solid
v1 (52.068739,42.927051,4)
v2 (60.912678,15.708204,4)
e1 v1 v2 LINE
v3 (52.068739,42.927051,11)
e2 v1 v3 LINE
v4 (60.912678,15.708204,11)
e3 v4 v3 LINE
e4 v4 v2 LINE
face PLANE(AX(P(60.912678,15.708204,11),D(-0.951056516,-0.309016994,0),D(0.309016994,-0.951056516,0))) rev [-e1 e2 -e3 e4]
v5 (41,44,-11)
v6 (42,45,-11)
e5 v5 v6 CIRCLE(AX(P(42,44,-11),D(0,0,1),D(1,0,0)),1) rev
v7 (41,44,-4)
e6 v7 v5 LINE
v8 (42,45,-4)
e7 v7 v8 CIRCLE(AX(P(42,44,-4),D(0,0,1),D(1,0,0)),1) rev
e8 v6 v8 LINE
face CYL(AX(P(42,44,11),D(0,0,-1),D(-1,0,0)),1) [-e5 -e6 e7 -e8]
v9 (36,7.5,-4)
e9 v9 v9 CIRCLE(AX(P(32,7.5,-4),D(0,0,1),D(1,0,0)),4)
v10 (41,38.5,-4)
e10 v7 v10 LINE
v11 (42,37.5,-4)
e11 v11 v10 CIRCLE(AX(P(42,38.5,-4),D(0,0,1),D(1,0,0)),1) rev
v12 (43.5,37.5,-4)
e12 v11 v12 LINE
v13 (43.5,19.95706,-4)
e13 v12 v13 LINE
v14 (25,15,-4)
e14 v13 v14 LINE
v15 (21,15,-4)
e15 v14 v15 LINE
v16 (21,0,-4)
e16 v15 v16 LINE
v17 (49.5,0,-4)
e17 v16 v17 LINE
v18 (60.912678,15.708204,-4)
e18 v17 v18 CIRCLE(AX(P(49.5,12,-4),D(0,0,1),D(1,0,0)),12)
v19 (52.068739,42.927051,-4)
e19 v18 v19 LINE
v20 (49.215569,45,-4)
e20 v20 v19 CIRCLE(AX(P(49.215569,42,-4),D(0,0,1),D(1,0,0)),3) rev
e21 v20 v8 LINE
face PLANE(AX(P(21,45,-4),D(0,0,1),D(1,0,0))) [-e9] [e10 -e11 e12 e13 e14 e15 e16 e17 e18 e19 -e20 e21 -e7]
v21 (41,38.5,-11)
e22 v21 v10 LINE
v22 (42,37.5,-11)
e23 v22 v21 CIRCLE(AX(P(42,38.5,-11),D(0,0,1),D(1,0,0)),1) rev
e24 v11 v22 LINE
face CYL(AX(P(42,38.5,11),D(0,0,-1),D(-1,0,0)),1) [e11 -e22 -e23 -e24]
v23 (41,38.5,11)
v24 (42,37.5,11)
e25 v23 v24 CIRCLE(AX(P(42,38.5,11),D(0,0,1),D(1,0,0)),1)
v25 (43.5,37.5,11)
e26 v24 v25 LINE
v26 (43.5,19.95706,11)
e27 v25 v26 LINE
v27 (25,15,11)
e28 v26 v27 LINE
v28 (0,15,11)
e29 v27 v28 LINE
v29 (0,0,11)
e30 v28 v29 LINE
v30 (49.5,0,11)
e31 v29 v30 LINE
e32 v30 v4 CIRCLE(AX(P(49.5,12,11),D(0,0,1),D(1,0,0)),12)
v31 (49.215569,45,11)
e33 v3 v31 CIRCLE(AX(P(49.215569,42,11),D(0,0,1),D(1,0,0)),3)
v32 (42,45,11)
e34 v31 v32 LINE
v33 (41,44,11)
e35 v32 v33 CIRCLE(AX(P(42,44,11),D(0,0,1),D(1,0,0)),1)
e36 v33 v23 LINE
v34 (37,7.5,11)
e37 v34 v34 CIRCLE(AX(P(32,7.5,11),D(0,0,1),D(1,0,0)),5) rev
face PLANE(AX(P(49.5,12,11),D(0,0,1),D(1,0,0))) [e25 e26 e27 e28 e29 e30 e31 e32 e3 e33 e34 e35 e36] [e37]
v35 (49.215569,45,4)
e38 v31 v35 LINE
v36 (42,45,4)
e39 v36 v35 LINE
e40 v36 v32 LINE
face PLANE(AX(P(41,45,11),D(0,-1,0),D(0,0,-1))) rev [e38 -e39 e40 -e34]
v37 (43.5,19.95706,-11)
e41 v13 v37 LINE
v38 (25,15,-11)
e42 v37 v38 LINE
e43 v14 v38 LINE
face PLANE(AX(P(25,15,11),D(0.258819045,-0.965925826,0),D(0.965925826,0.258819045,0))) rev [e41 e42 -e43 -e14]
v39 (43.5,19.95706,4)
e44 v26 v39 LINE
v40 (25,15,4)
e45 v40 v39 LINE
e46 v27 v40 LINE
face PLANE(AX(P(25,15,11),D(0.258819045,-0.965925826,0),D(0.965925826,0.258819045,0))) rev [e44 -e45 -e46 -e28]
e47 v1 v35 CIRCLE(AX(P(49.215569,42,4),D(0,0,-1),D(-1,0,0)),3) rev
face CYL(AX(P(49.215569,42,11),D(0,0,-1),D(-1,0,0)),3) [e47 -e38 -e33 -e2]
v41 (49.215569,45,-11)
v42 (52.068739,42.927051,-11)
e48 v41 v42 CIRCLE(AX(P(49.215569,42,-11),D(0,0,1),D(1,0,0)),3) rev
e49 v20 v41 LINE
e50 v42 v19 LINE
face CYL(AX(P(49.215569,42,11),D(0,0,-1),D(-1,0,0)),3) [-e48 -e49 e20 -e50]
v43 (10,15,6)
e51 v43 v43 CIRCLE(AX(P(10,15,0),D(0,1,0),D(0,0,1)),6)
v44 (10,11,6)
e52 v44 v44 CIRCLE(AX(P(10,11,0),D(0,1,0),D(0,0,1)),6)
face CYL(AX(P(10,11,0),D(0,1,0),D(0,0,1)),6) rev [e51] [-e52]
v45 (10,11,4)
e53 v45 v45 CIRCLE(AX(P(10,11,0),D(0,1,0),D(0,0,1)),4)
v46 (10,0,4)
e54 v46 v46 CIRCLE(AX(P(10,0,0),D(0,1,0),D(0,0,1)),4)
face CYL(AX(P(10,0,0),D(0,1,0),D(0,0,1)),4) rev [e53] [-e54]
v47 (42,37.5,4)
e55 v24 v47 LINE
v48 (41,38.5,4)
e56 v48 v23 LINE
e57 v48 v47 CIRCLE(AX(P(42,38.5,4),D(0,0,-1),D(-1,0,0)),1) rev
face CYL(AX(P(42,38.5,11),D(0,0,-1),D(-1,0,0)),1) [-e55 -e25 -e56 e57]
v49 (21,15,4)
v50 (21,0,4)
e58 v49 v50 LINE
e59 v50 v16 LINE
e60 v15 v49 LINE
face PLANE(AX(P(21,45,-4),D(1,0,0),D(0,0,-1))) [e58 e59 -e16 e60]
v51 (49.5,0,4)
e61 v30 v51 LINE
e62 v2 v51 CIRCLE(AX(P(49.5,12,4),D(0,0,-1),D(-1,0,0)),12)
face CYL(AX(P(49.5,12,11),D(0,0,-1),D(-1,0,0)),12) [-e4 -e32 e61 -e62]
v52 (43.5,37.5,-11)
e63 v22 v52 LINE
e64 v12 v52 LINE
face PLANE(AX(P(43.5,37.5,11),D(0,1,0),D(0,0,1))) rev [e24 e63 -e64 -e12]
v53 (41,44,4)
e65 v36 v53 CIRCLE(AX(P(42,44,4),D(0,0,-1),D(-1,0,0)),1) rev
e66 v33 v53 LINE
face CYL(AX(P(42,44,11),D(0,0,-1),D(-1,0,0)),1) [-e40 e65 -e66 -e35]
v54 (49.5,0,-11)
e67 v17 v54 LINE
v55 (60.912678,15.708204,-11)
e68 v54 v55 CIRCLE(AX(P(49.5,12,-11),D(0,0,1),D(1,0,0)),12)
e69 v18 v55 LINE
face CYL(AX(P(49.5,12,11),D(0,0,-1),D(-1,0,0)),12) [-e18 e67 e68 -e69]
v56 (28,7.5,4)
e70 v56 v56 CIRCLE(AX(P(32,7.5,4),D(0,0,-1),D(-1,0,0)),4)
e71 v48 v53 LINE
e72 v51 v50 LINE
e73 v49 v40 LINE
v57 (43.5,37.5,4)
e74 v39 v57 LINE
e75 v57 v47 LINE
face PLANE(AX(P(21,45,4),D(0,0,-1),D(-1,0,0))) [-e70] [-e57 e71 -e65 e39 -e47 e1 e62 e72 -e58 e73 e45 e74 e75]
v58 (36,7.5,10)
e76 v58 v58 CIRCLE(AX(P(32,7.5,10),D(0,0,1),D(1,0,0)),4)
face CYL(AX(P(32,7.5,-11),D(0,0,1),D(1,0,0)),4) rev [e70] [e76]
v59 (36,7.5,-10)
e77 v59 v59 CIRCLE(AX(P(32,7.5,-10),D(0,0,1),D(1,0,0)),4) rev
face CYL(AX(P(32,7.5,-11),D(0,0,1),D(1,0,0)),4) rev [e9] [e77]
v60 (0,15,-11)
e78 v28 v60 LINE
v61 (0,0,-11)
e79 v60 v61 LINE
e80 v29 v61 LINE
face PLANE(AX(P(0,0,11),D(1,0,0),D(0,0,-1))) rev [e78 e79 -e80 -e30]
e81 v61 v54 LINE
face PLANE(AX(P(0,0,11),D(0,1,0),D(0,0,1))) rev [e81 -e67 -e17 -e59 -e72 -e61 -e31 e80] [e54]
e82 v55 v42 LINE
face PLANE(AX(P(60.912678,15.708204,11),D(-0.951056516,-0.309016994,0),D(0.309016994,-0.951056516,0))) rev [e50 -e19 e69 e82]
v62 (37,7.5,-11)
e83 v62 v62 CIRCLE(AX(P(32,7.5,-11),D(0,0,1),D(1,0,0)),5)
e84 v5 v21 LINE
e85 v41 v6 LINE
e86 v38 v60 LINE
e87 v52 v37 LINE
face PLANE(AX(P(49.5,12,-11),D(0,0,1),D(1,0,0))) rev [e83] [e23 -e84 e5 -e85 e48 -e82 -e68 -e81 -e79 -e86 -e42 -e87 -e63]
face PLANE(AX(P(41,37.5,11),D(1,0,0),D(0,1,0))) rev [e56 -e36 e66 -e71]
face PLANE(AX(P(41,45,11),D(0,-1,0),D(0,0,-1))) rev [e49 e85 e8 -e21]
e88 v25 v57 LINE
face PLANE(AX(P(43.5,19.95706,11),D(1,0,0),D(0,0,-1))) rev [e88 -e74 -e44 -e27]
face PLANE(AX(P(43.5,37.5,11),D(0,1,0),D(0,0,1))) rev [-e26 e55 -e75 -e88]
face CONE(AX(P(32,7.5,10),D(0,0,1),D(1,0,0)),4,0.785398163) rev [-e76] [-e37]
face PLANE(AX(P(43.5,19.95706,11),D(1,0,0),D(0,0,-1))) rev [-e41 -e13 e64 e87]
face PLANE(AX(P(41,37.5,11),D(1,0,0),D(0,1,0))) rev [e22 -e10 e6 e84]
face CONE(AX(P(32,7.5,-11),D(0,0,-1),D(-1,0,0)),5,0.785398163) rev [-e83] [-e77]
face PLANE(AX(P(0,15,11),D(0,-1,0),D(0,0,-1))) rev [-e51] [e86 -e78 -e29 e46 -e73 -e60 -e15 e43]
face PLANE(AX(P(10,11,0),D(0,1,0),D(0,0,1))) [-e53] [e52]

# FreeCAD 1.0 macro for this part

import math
import FreeCAD as App
import Part
import Sketcher

V = App.Vector
Q = App.Units.Quantity


def edges_at(feature, points):
    """Names of the edges that pass closest to the given points."""
    edges = feature.Shape.Edges
    near = lambda p: min(range(len(edges)), key=lambda i: edges[i].distToShape(Part.Vertex(*p))[0])
    return sorted({f"Edge{near(p) + 1}" for p in points})

doc = App.newDocument("Part")
body = doc.addObject("PartDesign::Body", "Body")

sketch1 = body.newObject("Sketcher::SketchObject", "Sketch")
sketch1.AttachmentSupport = (doc.getObject("XY_Plane"), [""])
sketch1.MapMode = "FlatFace"
sketch1.addGeometry([
    Part.LineSegment(V(0, 15, 0), V(0, 0, 0)),
    Part.LineSegment(V(0, 0, 0), V(49.5, 0, 0)),
    Part.ArcOfCircle(Part.Circle(V(49.5, 12, 0), V(0, 0, 1), 12), math.radians(-90), math.radians(18)),
    Part.LineSegment(V(60.912678, 15.708204, 0), V(51.395197, 45, 0)),
    Part.LineSegment(V(51.395197, 45, 0), V(41, 45, 0)),
    Part.LineSegment(V(41, 45, 0), V(41, 37.5, 0)),
    Part.LineSegment(V(41, 37.5, 0), V(43.5, 37.5, 0)),
    Part.LineSegment(V(43.5, 37.5, 0), V(43.5, 19.95706, 0)),
    Part.LineSegment(V(43.5, 19.95706, 0), V(25, 15, 0)),
    Part.LineSegment(V(25, 15, 0), V(0, 15, 0)),
], False)
sketch1.addConstraint([
    Sketcher.Constraint("Coincident", 0, 2, 1, 1),
    Sketcher.Constraint("Tangent", 1, 2, 2, 1),
    Sketcher.Constraint("Tangent", 2, 2, 3, 1),
    Sketcher.Constraint("Coincident", 3, 2, 4, 1),
    Sketcher.Constraint("Coincident", 4, 2, 5, 1),
    Sketcher.Constraint("Coincident", 5, 2, 6, 1),
    Sketcher.Constraint("Coincident", 6, 2, 7, 1),
    Sketcher.Constraint("Coincident", 7, 2, 8, 1),
    Sketcher.Constraint("Coincident", 8, 2, 9, 1),
    Sketcher.Constraint("Coincident", 9, 2, 0, 1),
    Sketcher.Constraint("Vertical", 0),
    Sketcher.Constraint("Horizontal", 1),
    Sketcher.Constraint("Horizontal", 4),
    Sketcher.Constraint("Vertical", 5),
    Sketcher.Constraint("Horizontal", 6),
    Sketcher.Constraint("Vertical", 7),
    Sketcher.Constraint("Horizontal", 9),
    Sketcher.Constraint("Coincident", 0, 2, -1, 1),
    Sketcher.Constraint("Radius", 2, 12.0),
    Sketcher.Constraint("DistanceX", 9, 2, 9, 1, 25.0),
    Sketcher.Constraint("DistanceY", 0, 2, 0, 1, 15.0),
    Sketcher.Constraint("Angle", 3, Q("108 deg")),
    Sketcher.Constraint("Angle", 8, Q("-165 deg")),
    Sketcher.Constraint("DistanceX", 1, 1, 1, 2, 49.5),
    Sketcher.Constraint("DistanceX", 6, 1, 6, 2, 2.5),
    Sketcher.Constraint("DistanceY", 5, 2, 5, 1, 7.5),
    Sketcher.Constraint("DistanceY", -1, 1, 3, 2, 45.0),
    Sketcher.Constraint("DistanceX", -1, 1, 4, 2, 41.0),
])
pad1 = body.newObject("PartDesign::Pad", "Pad")
pad1.Profile = sketch1
pad1.Length = 22
pad1.Midplane = True
doc.recompute()

fillet = body.newObject("PartDesign::Fillet", "Fillet")
fillet.Base = (pad1, edges_at(pad1, [(51.395, 45, 0)]))
fillet.Radius = 3

sketch2 = body.newObject("Sketcher::SketchObject", "Sketch001")
sketch2.AttachmentSupport = (doc.getObject("XZ_Plane"), [""])
sketch2.MapMode = "FlatFace"
sketch2.AttachmentOffset = App.Placement(V(0, 0, -15), App.Rotation())
sketch2.addGeometry(Part.Circle(V(10, 0, 0), V(0, 0, 1), 4), False)
sketch2.addConstraint([
    Sketcher.Constraint("PointOnObject", 0, 3, -1),
    Sketcher.Constraint("Diameter", 0, 8.0),
    Sketcher.Constraint("DistanceX", -1, 1, 0, 3, 10.0),
])
pocket1 = body.newObject("PartDesign::Pocket", "Pocket")
pocket1.Profile = sketch2
pocket1.Type = "ThroughAll"
pocket1.Reversed = True

sketch3 = body.newObject("Sketcher::SketchObject", "Sketch002")
sketch3.AttachmentSupport = (doc.getObject("XZ_Plane"), [""])
sketch3.MapMode = "FlatFace"
sketch3.AttachmentOffset = App.Placement(V(0, 0, -15), App.Rotation())
sketch3.addGeometry([
    Part.Circle(V(10, 0, 0), V(0, 0, 1), 6),
    Part.Circle(V(10, 0, 0), V(0, 0, 1), 4),
], False)
sketch3.addConstraint([
    Sketcher.Constraint("Coincident", 1, 3, 0, 3),
    Sketcher.Constraint("PointOnObject", 0, 3, -1),
    Sketcher.Constraint("Diameter", 0, 12.0),
    Sketcher.Constraint("Diameter", 1, 8.0),
    Sketcher.Constraint("DistanceX", -1, 1, 0, 3, 10.0),
])
pocket2 = body.newObject("PartDesign::Pocket", "Pocket001")
pocket2.Profile = sketch3
pocket2.Length = 4
pocket2.Reversed = True
doc.recompute()

fillet2 = body.newObject("PartDesign::Fillet", "Fillet001")
fillet2.Base = (pocket2, edges_at(pocket2, [(41, 37.5, 0), (41, 45, 0)]))
fillet2.Radius = 1

sketch4 = body.newObject("Sketcher::SketchObject", "Sketch003")
sketch4.AttachmentSupport = (doc.getObject("XZ_Plane"), [""])
sketch4.MapMode = "FlatFace"
sketch4.addGeometry([
    Part.LineSegment(V(21, -4, 0), V(21, 4, 0)),
    Part.LineSegment(V(21, 4, 0), V(61.5, 4, 0)),
    Part.LineSegment(V(61.5, 4, 0), V(61.5, -4, 0)),
    Part.LineSegment(V(61.5, -4, 0), V(21, -4, 0)),
], False)
sketch4.addConstraint([
    Sketcher.Constraint("Coincident", 0, 2, 1, 1),
    Sketcher.Constraint("Coincident", 1, 2, 2, 1),
    Sketcher.Constraint("Coincident", 2, 2, 3, 1),
    Sketcher.Constraint("Coincident", 3, 2, 0, 1),
    Sketcher.Constraint("Vertical", 0),
    Sketcher.Constraint("Horizontal", 1),
    Sketcher.Constraint("Vertical", 2),
    Sketcher.Constraint("Horizontal", 3),
    Sketcher.Constraint("DistanceY", 0, 1, 0, 2, 8.0),
    Sketcher.Constraint("DistanceX", 1, 1, 1, 2, 40.5),
    Sketcher.Constraint("DistanceX", -1, 1, 0, 2, 21.0),
    Sketcher.Constraint("DistanceY", -1, 1, 0, 2, 4.0),
])
pocket3 = body.newObject("PartDesign::Pocket", "Pocket002")
pocket3.Profile = sketch4
pocket3.Type = "ThroughAll"
pocket3.Midplane = True

sketch5 = body.newObject("Sketcher::SketchObject", "Sketch004")
sketch5.AttachmentSupport = (doc.getObject("XY_Plane"), [""])
sketch5.MapMode = "FlatFace"
sketch5.AttachmentOffset = App.Placement(V(0, 0, 11), App.Rotation())
sketch5.addGeometry(Part.Circle(V(32, 7.5, 0), V(0, 0, 1), 4), False)
sketch5.addConstraint([
    Sketcher.Constraint("Diameter", 0, 8.0),
    Sketcher.Constraint("DistanceX", -1, 1, 0, 3, 32.0),
    Sketcher.Constraint("DistanceY", -1, 1, 0, 3, 7.5),
])
pocket4 = body.newObject("PartDesign::Pocket", "Pocket003")
pocket4.Profile = sketch5
pocket4.Type = "ThroughAll"
doc.recompute()

chamfer = body.newObject("PartDesign::Chamfer", "Chamfer")
chamfer.Base = (pocket4, edges_at(pocket4, [(28, 7.5, -11), (28, 7.5, 11)]))
chamfer.Size = 1

doc.recompute()
